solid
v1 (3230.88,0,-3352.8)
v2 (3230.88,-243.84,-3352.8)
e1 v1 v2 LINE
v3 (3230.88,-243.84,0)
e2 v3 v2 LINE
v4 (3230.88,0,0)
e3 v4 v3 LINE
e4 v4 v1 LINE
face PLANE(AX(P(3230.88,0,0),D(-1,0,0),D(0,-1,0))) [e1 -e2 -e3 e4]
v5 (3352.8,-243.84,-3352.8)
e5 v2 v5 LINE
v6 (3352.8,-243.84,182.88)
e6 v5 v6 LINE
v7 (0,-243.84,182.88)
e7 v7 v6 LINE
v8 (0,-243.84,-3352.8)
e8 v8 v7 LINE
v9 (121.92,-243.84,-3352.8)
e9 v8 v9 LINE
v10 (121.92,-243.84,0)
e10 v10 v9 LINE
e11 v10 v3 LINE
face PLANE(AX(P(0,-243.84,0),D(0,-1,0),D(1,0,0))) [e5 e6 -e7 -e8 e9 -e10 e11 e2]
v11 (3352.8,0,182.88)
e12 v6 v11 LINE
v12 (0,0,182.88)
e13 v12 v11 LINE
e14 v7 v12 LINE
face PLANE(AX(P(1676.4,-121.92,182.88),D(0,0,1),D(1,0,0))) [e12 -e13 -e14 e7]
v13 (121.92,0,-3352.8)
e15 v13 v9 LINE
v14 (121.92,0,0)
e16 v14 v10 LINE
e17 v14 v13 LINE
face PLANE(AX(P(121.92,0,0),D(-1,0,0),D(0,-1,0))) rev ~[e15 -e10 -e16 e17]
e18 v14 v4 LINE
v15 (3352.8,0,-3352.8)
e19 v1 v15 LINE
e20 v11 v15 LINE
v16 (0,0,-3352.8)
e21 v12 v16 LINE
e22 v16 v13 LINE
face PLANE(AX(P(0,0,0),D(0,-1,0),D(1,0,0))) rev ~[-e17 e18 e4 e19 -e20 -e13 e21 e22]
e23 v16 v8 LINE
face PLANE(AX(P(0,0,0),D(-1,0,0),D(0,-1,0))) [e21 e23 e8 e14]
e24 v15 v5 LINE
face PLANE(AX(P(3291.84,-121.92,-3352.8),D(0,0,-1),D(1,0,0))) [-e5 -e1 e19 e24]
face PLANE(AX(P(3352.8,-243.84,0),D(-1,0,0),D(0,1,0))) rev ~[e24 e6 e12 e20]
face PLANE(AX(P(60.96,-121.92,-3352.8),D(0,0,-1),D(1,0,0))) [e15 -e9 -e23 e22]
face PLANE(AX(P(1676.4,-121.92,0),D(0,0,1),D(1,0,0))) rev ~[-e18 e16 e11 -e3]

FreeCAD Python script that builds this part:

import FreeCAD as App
import Part
import Sketcher
from FreeCAD import Vector
Q = App.Units.Quantity


def add_polygon(sketch, points):
    """Adds a closed chain of lines whose ends are joined by coincident constraints."""
    first, n = sketch.GeometryCount, len(points)
    for a, b in zip(points, points[1:] + points[:1]):
        sketch.addGeometry(Part.LineSegment(App.Vector(*a, 0), App.Vector(*b, 0)), False)
    for i in range(n):
        sketch.addConstraint(Sketcher.Constraint("Coincident", first + i, 2, first + (i + 1) % n, 1))

doc = App.newDocument("Part")
body = doc.addObject("PartDesign::Body", "Body")

sketch1 = body.newObject("Sketcher::SketchObject", "Sketch")
sketch1.AttachmentSupport = (doc.getObject("XY_Plane"), [""])
sketch1.MapMode = "FlatFace"
add_polygon(sketch1, [(0, 0), (0, -244), (3353, -244), (3353, 0)])
sketch1.addConstraint([
    Sketcher.Constraint("Vertical", 0),
    Sketcher.Constraint("Horizontal", 1),
    Sketcher.Constraint("Vertical", 2),
    Sketcher.Constraint("Horizontal", 3),
    Sketcher.Constraint("Coincident", 3, 2, -1, 1),
    Sketcher.Constraint("DistanceX", 1, 1, 1, 2, Q("132 in")),
    Sketcher.Constraint("DistanceY", 0, 2, 0, 1, Q("9.6 in")),
])
pad1 = body.newObject("PartDesign::Pad", "Pad")
pad1.Profile = sketch1
pad1.Length = Q("7.2 in")

sketch2 = body.newObject("Sketcher::SketchObject", "Sketch001")
sketch2.AttachmentSupport = (doc.getObject("XY_Plane"), [""])
sketch2.MapMode = "FlatFace"
add_polygon(sketch2, [(0, -244), (0, 0), (122, 0), (122, -244)])
add_polygon(sketch2, [(3231, -244), (3231, 0), (3353, 0), (3353, -244)])
sketch2.addConstraint([
    Sketcher.Constraint("Vertical", 0),
    Sketcher.Constraint("Horizontal", 1),
    Sketcher.Constraint("Vertical", 2),
    Sketcher.Constraint("Horizontal", 3),
    Sketcher.Constraint("Vertical", 4),
    Sketcher.Constraint("Horizontal", 5),
    Sketcher.Constraint("Vertical", 6),
    Sketcher.Constraint("Horizontal", 7),
    Sketcher.Constraint("Coincident", 0, 2, -1, 1),
    Sketcher.Constraint("PointOnObject", 4, 2, -1),
    Sketcher.Constraint("Horizontal", 3, 2, 6, 2),
    Sketcher.Constraint("Equal", 3, 5),
    Sketcher.Constraint("DistanceX", 1, 1, 1, 2, Q("4.8 in")),
    Sketcher.Constraint("DistanceY", 0, 1, 0, 2, Q("9.6 in")),
    Sketcher.Constraint("DistanceX", -1, 1, 5, 2, Q("132 in")),
])
pad2 = body.newObject("PartDesign::Pad", "Pad001")
pad2.Profile = sketch2
pad2.Length = Q("132 in")
pad2.Reversed = True

doc.recompute()
